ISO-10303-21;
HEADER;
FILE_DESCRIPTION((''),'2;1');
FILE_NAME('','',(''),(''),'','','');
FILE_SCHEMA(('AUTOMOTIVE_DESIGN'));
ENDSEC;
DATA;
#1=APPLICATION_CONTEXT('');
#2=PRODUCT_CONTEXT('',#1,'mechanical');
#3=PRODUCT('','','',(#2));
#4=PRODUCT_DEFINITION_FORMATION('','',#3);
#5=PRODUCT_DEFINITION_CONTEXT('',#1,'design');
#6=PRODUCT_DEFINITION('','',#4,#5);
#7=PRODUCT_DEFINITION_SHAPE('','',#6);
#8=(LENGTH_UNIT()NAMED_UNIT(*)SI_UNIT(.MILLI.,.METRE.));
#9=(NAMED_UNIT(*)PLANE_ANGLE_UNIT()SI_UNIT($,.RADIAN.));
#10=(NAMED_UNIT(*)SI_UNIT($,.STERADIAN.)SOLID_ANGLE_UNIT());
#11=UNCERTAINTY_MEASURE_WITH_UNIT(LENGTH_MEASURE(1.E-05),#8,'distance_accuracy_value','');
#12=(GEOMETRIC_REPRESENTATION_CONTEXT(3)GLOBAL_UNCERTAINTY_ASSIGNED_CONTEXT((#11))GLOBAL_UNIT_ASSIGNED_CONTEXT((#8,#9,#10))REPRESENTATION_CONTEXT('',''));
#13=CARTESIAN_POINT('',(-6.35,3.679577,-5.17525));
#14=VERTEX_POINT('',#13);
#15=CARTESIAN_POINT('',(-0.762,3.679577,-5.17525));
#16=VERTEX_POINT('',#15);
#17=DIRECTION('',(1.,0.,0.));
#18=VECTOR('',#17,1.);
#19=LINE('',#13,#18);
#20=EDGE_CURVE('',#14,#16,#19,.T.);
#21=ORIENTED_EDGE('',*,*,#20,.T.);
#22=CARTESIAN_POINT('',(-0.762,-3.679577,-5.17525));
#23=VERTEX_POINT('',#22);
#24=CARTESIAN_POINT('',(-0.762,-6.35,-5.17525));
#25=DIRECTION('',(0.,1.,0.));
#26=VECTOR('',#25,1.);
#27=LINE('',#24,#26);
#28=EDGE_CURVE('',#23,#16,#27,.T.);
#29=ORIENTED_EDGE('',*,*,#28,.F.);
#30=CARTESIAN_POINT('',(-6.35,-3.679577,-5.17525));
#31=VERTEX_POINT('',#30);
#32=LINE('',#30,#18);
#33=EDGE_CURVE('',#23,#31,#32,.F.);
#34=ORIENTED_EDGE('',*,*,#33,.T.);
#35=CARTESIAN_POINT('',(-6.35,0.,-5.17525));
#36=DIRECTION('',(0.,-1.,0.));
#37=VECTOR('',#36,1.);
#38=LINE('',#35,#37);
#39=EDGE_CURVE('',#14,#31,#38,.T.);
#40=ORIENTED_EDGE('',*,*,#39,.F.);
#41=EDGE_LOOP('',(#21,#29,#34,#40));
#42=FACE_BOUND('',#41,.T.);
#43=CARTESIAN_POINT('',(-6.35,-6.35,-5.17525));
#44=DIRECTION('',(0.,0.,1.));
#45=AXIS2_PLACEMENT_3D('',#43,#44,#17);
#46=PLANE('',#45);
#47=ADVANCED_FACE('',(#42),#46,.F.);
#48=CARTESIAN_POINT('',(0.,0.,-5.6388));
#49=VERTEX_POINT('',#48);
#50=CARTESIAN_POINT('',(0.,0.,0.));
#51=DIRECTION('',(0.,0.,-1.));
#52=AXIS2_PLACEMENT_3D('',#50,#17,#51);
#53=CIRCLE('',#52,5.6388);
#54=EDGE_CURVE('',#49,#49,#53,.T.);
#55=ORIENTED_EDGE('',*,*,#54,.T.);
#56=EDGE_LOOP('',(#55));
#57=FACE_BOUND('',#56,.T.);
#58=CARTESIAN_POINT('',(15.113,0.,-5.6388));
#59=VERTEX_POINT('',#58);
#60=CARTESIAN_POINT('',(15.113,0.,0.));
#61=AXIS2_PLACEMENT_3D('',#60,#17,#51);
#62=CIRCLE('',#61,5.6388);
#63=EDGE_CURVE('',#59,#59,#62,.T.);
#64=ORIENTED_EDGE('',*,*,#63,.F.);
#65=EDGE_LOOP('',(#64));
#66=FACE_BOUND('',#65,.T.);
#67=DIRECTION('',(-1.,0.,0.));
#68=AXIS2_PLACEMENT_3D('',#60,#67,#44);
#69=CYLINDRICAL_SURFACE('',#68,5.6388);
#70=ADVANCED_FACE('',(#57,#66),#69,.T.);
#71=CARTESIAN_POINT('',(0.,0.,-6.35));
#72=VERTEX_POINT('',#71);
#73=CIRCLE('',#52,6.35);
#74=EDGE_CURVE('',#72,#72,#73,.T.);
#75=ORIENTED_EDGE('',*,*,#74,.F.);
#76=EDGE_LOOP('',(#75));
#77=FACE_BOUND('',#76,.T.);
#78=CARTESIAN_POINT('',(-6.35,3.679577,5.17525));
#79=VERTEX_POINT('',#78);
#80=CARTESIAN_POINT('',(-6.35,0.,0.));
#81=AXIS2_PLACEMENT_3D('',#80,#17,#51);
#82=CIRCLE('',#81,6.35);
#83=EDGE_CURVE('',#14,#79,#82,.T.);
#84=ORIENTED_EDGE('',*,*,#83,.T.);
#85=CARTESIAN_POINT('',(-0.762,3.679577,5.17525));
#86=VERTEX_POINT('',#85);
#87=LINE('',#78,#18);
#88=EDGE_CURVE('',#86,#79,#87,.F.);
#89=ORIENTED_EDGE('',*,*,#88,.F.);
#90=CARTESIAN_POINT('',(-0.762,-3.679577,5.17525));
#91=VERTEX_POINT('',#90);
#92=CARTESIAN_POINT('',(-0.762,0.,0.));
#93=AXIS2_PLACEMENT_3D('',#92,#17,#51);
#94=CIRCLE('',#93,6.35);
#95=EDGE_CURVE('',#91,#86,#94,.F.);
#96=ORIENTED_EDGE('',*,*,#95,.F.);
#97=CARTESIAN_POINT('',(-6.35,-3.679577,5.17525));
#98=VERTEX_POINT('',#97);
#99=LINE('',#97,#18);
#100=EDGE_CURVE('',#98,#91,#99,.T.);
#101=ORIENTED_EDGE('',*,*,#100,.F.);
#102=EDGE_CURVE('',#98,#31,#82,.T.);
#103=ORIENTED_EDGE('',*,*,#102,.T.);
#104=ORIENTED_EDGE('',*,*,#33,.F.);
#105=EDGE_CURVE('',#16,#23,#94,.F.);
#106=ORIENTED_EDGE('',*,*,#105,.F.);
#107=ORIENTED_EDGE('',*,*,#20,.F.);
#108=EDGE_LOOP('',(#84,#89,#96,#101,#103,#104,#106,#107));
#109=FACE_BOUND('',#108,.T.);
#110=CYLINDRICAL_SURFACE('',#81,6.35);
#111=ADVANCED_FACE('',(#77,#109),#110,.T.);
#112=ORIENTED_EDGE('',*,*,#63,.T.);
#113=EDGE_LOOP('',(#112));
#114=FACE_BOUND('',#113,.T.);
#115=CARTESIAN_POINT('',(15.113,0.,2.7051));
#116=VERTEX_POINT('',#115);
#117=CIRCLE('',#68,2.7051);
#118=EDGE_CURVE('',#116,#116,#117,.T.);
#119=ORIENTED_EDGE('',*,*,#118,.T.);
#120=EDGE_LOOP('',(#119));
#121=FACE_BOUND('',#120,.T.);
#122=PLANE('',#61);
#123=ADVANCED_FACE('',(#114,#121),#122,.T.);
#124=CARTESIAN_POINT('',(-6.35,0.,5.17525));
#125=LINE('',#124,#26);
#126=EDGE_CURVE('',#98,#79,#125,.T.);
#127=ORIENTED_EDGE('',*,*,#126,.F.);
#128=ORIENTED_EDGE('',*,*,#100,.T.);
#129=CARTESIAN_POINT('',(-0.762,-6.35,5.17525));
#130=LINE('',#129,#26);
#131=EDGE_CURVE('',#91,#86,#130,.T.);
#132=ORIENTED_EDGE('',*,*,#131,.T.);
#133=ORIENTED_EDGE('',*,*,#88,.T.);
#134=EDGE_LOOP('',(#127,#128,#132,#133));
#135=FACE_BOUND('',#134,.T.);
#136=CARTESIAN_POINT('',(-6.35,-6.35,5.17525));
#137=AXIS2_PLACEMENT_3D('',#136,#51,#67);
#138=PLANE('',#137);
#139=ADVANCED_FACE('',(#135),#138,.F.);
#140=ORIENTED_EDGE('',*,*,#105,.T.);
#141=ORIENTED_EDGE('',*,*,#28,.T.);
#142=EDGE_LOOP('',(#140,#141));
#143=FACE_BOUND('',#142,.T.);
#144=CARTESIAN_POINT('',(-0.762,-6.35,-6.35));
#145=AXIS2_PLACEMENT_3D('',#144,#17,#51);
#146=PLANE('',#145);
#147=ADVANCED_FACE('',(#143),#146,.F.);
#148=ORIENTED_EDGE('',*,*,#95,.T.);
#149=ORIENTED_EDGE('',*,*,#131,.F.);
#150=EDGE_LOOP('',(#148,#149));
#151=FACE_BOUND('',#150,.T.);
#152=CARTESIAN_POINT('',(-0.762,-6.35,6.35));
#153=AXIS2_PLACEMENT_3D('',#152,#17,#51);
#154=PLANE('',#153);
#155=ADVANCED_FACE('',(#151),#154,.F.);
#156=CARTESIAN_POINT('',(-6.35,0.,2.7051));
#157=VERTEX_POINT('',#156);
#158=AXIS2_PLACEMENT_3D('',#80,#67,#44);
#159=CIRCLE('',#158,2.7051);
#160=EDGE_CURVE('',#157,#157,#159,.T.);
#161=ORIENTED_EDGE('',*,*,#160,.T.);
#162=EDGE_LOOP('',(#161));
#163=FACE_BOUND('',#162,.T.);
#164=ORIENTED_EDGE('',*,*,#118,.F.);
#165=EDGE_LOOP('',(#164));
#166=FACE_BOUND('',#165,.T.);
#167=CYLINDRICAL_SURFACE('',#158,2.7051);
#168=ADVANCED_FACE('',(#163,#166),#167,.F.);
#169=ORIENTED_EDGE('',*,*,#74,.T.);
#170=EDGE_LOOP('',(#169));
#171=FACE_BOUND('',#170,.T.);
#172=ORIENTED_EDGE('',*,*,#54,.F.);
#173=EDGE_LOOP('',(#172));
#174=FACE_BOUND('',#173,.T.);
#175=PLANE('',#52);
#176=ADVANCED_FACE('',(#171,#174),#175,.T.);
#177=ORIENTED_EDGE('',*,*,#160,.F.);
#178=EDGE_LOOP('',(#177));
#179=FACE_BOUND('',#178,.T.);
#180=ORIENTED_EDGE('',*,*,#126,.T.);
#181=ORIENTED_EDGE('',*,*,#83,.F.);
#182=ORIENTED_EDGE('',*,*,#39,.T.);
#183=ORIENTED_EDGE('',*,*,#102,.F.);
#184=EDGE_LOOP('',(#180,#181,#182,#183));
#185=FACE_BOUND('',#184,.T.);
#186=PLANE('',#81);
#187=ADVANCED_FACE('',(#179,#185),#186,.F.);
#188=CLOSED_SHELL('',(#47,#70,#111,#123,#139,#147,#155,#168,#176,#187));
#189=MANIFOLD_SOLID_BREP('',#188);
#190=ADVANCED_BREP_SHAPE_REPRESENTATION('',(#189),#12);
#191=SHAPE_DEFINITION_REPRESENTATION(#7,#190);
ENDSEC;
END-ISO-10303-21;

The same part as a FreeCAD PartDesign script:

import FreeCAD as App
import Part
import Sketcher
Q = App.Units.Quantity

doc = App.newDocument("Part")
params = doc.addObject("Spreadsheet::Sheet", "Params")
for row, (alias, value) in enumerate([
    ("sketch1_diameter", "0.5 in"),
    ("pad1_length", "0.25 in"),
    ("sketch2_diameter", "0.444 in"),
    ("pad2_length", "0.595 in"),
    ("sketch3_width", "0.22 in"),
    ("pocket1_length", "0.5 in"),
    ("sketch4_diameter", "0.213 in"),
    ("hole_diameter", "0.213 in"),
], start=1):
    params.set(f"A{row}", alias)
    params.set(f"B{row}", "=" + value)
    params.setAlias(f"B{row}", alias)

body = doc.addObject("PartDesign::Body", "Body")

# Sketch on YZ plane
sketch1 = doc.addObject("Sketcher::SketchObject", "Sketch")
body.addObject(sketch1)
sketch1.AttachmentSupport = (doc.YZ_Plane, [""])
sketch1.MapMode = "FlatFace"
sketch1.addGeometry(Part.Circle(App.Vector(0, 0, 0), App.Vector(0, 0, 1), 6.35), False)
sketch1.addConstraint([
    Sketcher.Constraint("Coincident", 0, 3, -1, 1),
    Sketcher.Constraint("Diameter", 0, Q("0.5 in")),
])
sketch1.setExpression("Constraints[1]", "Params.sketch1_diameter")
pad1 = doc.addObject("PartDesign::Pad", "Pad")
body.addObject(pad1)
pad1.Profile = sketch1
pad1.setExpression("Length", "Params.pad1_length")
pad1.Reversed = True

# Sketch on YZ plane
sketch2 = doc.addObject("Sketcher::SketchObject", "Sketch001")
body.addObject(sketch2)
sketch2.AttachmentSupport = (doc.YZ_Plane, [""])
sketch2.MapMode = "FlatFace"
sketch2.addGeometry(Part.Circle(App.Vector(0, 0, 0), App.Vector(0, 0, 1), 5.6388), False)
sketch2.addConstraint([
    Sketcher.Constraint("Coincident", 0, 3, -1, 1),
    Sketcher.Constraint("Diameter", 0, Q("0.444 in")),
])
sketch2.setExpression("Constraints[1]", "Params.sketch2_diameter")
pad2 = doc.addObject("PartDesign::Pad", "Pad001")
body.addObject(pad2)
pad2.Profile = sketch2
pad2.setExpression("Length", "Params.pad2_length")

# Sketch on XZ plane
sketch3 = doc.addObject("Sketcher::SketchObject", "Sketch002")
body.addObject(sketch3)
sketch3.AttachmentSupport = (doc.XZ_Plane, [""])
sketch3.MapMode = "FlatFace"
sketch3.addGeometry([
    Part.LineSegment(App.Vector(-6.35, -6.35, 0), App.Vector(-6.35, -5.17525, 0)),  # 0
    Part.LineSegment(App.Vector(-6.35, -5.17525, 0), App.Vector(-0.762, -5.17525, 0)),  # 1
    Part.LineSegment(App.Vector(-0.762, -5.17525, 0), App.Vector(-0.762, -6.35, 0)),  # 2
    Part.LineSegment(App.Vector(-0.762, -6.35, 0), App.Vector(-6.35, -6.35, 0)),  # 3
    Part.LineSegment(App.Vector(-6.35, 5.17525, 0), App.Vector(-6.35, 6.35, 0)),  # 4
    Part.LineSegment(App.Vector(-6.35, 6.35, 0), App.Vector(-0.762, 6.35, 0)),  # 5
    Part.LineSegment(App.Vector(-0.762, 6.35, 0), App.Vector(-0.762, 5.17525, 0)),  # 6
    Part.LineSegment(App.Vector(-0.762, 5.17525, 0), App.Vector(-6.35, 5.17525, 0)),  # 7
], False)
sketch3.addConstraint([
    Sketcher.Constraint("Coincident", 0, 2, 1, 1),
    Sketcher.Constraint("Coincident", 1, 2, 2, 1),
    Sketcher.Constraint("Coincident", 2, 2, 3, 1),
    Sketcher.Constraint("Coincident", 3, 2, 0, 1),
    Sketcher.Constraint("Coincident", 4, 2, 5, 1),
    Sketcher.Constraint("Coincident", 5, 2, 6, 1),
    Sketcher.Constraint("Coincident", 6, 2, 7, 1),
    Sketcher.Constraint("Coincident", 7, 2, 4, 1),
    Sketcher.Constraint("Vertical", 0),
    Sketcher.Constraint("Horizontal", 1),
    Sketcher.Constraint("Vertical", 2),
    Sketcher.Constraint("Horizontal", 3),
    Sketcher.Constraint("Vertical", 4),
    Sketcher.Constraint("Horizontal", 5),
    Sketcher.Constraint("Vertical", 6),
    Sketcher.Constraint("Horizontal", 7),
    Sketcher.Constraint("Symmetric", 3, 2, 4, 2, -1),
    Sketcher.Constraint("Symmetric", 1, 2, 6, 2, -1),
    Sketcher.Constraint("DistanceX", 1, 1, 1, 2, Q("0.22 in")),
    Sketcher.Constraint("DistanceY", 3, 2, 4, 2, Q("0.5 in")),
    Sketcher.Constraint("DistanceX", 0, 2, -1, 1, Q("0.25 in")),
    Sketcher.Constraint("DistanceY", 1, 2, 6, 2, Q("0.4075 in")),
])
sketch3.setExpression("Constraints[18]", "Params.sketch3_width")
pocket1 = doc.addObject("PartDesign::Pocket", "Pocket")
body.addObject(pocket1)
pocket1.Profile = sketch3
pocket1.setExpression("Length", "Params.pocket1_length")
pocket1.Midplane = True

# Sketch on YZ plane
sketch4 = doc.addObject("Sketcher::SketchObject", "Sketch003")
body.addObject(sketch4)
sketch4.AttachmentSupport = (doc.YZ_Plane, [""])
sketch4.MapMode = "FlatFace"
sketch4.AttachmentOffset = App.Placement(App.Vector(0, 0, -0.25 * 25.4), App.Rotation())
sketch4.addGeometry(Part.Circle(App.Vector(0, 0, 0), App.Vector(0, 0, 1), 2.7051), False)
sketch4.addConstraint([
    Sketcher.Constraint("Coincident", 0, 3, -1, 1),
    Sketcher.Constraint("Diameter", 0, Q("0.213 in")),
])
sketch4.setExpression("Constraints[1]", "Params.sketch4_diameter")
doc.recompute()
hole = doc.addObject("PartDesign::Hole", "Hole")
body.addObject(hole)
hole.Profile = sketch4
hole.ThreadType = "None"
hole.setExpression("Diameter", "Params.hole_diameter")
hole.DepthType = "ThroughAll"
hole.Reversed = True

doc.recompute()
